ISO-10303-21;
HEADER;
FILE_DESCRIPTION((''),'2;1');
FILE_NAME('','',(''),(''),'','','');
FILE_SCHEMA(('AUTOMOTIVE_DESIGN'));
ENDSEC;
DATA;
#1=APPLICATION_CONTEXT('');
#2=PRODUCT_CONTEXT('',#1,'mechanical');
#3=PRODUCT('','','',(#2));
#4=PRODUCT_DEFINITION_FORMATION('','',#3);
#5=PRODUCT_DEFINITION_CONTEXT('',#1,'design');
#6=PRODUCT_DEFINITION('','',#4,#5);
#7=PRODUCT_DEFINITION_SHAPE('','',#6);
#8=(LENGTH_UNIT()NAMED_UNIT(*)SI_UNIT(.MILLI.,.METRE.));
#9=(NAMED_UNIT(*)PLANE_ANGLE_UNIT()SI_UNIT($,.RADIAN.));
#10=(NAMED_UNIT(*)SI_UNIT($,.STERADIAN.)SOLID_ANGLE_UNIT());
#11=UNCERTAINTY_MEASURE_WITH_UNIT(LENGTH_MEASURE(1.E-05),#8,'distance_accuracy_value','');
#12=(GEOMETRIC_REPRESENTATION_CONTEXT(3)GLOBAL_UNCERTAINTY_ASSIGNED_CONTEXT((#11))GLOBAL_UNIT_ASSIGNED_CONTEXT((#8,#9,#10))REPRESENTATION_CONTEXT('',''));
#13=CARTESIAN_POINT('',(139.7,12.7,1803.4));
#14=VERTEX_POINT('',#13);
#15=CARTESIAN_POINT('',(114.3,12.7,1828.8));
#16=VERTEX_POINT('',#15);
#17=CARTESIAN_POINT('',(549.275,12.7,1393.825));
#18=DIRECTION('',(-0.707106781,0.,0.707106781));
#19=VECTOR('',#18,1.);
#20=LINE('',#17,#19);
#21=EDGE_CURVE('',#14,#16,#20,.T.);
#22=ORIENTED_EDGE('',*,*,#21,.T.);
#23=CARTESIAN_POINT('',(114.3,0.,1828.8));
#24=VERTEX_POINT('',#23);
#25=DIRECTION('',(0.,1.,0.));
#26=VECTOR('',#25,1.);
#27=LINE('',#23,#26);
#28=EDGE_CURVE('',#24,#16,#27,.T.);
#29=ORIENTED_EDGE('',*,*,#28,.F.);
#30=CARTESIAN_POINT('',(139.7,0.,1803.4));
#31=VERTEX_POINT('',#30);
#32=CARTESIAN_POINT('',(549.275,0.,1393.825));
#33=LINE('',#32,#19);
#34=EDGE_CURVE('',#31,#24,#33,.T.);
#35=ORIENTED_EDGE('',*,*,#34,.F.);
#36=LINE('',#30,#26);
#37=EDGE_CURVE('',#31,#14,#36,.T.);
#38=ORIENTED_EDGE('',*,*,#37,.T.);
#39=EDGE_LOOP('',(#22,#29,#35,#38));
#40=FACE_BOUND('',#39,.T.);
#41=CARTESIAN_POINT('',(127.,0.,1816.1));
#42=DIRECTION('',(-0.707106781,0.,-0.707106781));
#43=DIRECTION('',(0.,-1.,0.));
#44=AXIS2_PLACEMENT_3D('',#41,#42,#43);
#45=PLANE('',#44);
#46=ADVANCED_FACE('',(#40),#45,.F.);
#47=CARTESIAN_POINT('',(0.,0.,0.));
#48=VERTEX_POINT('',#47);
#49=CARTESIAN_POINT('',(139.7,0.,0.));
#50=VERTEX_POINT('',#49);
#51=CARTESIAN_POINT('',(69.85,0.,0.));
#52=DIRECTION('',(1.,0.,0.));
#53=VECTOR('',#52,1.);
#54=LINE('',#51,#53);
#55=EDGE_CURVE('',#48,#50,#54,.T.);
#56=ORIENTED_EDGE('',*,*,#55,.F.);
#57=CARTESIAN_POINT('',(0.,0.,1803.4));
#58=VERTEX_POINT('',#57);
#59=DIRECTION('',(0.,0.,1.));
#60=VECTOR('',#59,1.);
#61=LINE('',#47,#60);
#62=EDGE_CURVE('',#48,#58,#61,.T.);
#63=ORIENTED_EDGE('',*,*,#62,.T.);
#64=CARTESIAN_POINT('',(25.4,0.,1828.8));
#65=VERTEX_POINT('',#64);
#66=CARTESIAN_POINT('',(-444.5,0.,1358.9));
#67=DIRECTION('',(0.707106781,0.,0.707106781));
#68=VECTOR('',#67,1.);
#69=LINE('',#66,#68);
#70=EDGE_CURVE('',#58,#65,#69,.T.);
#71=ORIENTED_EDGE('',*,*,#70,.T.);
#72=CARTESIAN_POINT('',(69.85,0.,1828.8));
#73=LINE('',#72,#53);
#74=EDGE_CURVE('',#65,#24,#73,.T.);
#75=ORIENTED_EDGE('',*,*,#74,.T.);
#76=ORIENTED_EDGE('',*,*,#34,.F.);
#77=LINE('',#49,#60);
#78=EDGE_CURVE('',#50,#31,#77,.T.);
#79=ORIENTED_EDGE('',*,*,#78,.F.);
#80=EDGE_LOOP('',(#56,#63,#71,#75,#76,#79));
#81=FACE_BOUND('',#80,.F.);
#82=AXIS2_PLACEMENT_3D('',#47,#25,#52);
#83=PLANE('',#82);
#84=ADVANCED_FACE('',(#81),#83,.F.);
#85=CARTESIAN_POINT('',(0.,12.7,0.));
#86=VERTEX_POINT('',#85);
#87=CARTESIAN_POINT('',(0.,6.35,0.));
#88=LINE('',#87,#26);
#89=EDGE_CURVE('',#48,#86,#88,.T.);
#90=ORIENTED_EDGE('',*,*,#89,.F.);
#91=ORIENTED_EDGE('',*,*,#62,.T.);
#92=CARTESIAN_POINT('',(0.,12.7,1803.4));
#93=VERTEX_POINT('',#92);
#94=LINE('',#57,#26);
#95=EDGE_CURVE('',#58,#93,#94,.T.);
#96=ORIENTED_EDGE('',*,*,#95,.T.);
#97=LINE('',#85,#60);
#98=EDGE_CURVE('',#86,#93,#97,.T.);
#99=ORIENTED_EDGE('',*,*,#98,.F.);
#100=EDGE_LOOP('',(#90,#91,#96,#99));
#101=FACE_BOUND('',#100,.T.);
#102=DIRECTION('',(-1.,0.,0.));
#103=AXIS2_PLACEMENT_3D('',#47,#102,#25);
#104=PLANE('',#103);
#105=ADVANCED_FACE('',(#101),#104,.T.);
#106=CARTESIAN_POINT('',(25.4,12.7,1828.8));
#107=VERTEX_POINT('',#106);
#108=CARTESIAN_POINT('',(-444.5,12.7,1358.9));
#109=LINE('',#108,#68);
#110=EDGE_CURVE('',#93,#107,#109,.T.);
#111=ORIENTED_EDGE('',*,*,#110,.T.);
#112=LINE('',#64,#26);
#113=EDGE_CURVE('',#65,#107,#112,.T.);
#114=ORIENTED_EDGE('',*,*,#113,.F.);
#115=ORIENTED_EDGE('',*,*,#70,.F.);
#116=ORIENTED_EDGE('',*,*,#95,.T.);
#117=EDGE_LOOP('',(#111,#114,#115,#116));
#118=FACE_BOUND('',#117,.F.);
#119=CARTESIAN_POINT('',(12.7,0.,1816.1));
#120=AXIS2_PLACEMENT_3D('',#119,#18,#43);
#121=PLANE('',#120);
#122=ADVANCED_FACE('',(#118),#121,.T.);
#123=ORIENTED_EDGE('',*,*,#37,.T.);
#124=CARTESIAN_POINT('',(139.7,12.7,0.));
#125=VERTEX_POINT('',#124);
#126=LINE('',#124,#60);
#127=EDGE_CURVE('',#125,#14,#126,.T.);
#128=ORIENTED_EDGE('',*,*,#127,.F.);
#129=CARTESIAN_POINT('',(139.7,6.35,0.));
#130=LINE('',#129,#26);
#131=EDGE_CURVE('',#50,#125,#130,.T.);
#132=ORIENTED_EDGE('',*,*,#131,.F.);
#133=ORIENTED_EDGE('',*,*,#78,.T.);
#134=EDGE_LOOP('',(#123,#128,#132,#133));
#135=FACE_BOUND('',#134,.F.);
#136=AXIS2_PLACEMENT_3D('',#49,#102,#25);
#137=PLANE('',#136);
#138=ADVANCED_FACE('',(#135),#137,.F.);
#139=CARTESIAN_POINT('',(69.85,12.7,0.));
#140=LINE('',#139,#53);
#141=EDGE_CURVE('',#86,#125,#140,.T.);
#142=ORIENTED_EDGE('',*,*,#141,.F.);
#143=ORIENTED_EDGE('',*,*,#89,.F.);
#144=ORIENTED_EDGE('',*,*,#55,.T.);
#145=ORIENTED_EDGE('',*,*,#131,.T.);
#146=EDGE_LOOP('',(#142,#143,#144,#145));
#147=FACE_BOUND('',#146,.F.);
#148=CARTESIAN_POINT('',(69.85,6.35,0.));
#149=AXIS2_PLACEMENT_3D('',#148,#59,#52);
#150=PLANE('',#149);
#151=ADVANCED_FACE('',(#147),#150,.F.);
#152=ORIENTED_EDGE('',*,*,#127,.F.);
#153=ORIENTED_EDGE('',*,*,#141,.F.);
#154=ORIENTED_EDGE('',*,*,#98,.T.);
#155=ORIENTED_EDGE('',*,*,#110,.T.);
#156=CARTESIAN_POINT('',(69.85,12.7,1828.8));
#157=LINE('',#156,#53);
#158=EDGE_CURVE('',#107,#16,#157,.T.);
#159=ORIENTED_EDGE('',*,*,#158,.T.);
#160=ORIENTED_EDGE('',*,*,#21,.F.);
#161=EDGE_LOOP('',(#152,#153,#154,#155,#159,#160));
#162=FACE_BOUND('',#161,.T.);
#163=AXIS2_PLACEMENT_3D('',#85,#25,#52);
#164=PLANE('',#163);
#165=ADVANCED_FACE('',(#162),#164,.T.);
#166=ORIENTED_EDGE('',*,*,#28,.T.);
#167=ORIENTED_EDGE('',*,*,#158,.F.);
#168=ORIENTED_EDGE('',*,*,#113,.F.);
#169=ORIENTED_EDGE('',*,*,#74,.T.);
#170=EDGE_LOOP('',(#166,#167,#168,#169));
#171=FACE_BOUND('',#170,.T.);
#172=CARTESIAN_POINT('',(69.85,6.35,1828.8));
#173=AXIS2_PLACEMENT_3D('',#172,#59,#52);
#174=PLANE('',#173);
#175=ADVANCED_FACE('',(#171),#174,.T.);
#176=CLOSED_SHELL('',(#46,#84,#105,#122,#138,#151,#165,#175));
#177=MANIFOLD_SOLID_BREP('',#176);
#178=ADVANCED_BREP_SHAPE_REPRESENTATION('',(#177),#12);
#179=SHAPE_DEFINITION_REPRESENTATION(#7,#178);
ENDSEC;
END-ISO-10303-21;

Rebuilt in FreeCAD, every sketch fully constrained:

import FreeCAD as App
import Part
import Sketcher
Q = App.Units.Quantity


def edges_at(feature, points):
    """Names of the edges that pass closest to the given points."""
    edges = feature.Shape.Edges
    near = lambda p: min(range(len(edges)), key=lambda i: edges[i].distToShape(Part.Vertex(*p))[0])
    return sorted({f"Edge{near(p) + 1}" for p in points})

doc = App.newDocument("Part")
params = doc.addObject("Spreadsheet::Sheet", "Params")
for row, (alias, value) in enumerate([
    ("sketch1_width", "5.5 in"),
    ("sketch1_height", "0.5 in"),
    ("pad1_length", "72 in"),
    ("chamfer_size", "1 in"),
], start=1):
    params.set(f"A{row}", alias)
    params.set(f"B{row}", "=" + value)
    params.setAlias(f"B{row}", alias)

body = doc.addObject("PartDesign::Body", "Body")

# Sketch on XY plane
sketch1 = body.newObject("Sketcher::SketchObject", "Sketch")
sketch1.AttachmentSupport = (doc.getObject("XY_Plane"), [""])
sketch1.MapMode = "FlatFace"
sketch1.addGeometry(Part.LineSegment(App.Vector(0, 13, 0), App.Vector(0, 0, 0)), False)
sketch1.addGeometry(Part.LineSegment(App.Vector(0, 0, 0), App.Vector(140, 0, 0)), False)
sketch1.addGeometry(Part.LineSegment(App.Vector(140, 0, 0), App.Vector(140, 13, 0)), False)
sketch1.addGeometry(Part.LineSegment(App.Vector(140, 13, 0), App.Vector(0, 13, 0)), False)
sketch1.addConstraint(Sketcher.Constraint("Coincident", 0, 2, 1, 1))
sketch1.addConstraint(Sketcher.Constraint("Coincident", 1, 2, 2, 1))
sketch1.addConstraint(Sketcher.Constraint("Coincident", 2, 2, 3, 1))
sketch1.addConstraint(Sketcher.Constraint("Coincident", 3, 2, 0, 1))
sketch1.addConstraint(Sketcher.Constraint("Vertical", 0))
sketch1.addConstraint(Sketcher.Constraint("Horizontal", 1))
sketch1.addConstraint(Sketcher.Constraint("Vertical", 2))
sketch1.addConstraint(Sketcher.Constraint("Horizontal", 3))
sketch1.addConstraint(Sketcher.Constraint("Coincident", 0, 2, -1, 1))
sketch1.addConstraint(Sketcher.Constraint("DistanceX", 1, 1, 1, 2, Q("5.5 in")))
sketch1.addConstraint(Sketcher.Constraint("DistanceY", 0, 2, 0, 1, Q("0.5 in")))
sketch1.setExpression("Constraints[9]", "Params.sketch1_width")
sketch1.setExpression("Constraints[10]", "Params.sketch1_height")
pad1 = body.newObject("PartDesign::Pad", "Pad")
pad1.Profile = sketch1
pad1.setExpression("Length", "Params.pad1_length")
doc.recompute()

chamfer = body.newObject("PartDesign::Chamfer", "Chamfer")
chamfer.Base = (pad1, edges_at(pad1, [(139.7, 6.35, 1828.8), (0, 6.35, 1828.8)]))
chamfer.setExpression("Size", "Params.chamfer_size")

doc.recompute()
